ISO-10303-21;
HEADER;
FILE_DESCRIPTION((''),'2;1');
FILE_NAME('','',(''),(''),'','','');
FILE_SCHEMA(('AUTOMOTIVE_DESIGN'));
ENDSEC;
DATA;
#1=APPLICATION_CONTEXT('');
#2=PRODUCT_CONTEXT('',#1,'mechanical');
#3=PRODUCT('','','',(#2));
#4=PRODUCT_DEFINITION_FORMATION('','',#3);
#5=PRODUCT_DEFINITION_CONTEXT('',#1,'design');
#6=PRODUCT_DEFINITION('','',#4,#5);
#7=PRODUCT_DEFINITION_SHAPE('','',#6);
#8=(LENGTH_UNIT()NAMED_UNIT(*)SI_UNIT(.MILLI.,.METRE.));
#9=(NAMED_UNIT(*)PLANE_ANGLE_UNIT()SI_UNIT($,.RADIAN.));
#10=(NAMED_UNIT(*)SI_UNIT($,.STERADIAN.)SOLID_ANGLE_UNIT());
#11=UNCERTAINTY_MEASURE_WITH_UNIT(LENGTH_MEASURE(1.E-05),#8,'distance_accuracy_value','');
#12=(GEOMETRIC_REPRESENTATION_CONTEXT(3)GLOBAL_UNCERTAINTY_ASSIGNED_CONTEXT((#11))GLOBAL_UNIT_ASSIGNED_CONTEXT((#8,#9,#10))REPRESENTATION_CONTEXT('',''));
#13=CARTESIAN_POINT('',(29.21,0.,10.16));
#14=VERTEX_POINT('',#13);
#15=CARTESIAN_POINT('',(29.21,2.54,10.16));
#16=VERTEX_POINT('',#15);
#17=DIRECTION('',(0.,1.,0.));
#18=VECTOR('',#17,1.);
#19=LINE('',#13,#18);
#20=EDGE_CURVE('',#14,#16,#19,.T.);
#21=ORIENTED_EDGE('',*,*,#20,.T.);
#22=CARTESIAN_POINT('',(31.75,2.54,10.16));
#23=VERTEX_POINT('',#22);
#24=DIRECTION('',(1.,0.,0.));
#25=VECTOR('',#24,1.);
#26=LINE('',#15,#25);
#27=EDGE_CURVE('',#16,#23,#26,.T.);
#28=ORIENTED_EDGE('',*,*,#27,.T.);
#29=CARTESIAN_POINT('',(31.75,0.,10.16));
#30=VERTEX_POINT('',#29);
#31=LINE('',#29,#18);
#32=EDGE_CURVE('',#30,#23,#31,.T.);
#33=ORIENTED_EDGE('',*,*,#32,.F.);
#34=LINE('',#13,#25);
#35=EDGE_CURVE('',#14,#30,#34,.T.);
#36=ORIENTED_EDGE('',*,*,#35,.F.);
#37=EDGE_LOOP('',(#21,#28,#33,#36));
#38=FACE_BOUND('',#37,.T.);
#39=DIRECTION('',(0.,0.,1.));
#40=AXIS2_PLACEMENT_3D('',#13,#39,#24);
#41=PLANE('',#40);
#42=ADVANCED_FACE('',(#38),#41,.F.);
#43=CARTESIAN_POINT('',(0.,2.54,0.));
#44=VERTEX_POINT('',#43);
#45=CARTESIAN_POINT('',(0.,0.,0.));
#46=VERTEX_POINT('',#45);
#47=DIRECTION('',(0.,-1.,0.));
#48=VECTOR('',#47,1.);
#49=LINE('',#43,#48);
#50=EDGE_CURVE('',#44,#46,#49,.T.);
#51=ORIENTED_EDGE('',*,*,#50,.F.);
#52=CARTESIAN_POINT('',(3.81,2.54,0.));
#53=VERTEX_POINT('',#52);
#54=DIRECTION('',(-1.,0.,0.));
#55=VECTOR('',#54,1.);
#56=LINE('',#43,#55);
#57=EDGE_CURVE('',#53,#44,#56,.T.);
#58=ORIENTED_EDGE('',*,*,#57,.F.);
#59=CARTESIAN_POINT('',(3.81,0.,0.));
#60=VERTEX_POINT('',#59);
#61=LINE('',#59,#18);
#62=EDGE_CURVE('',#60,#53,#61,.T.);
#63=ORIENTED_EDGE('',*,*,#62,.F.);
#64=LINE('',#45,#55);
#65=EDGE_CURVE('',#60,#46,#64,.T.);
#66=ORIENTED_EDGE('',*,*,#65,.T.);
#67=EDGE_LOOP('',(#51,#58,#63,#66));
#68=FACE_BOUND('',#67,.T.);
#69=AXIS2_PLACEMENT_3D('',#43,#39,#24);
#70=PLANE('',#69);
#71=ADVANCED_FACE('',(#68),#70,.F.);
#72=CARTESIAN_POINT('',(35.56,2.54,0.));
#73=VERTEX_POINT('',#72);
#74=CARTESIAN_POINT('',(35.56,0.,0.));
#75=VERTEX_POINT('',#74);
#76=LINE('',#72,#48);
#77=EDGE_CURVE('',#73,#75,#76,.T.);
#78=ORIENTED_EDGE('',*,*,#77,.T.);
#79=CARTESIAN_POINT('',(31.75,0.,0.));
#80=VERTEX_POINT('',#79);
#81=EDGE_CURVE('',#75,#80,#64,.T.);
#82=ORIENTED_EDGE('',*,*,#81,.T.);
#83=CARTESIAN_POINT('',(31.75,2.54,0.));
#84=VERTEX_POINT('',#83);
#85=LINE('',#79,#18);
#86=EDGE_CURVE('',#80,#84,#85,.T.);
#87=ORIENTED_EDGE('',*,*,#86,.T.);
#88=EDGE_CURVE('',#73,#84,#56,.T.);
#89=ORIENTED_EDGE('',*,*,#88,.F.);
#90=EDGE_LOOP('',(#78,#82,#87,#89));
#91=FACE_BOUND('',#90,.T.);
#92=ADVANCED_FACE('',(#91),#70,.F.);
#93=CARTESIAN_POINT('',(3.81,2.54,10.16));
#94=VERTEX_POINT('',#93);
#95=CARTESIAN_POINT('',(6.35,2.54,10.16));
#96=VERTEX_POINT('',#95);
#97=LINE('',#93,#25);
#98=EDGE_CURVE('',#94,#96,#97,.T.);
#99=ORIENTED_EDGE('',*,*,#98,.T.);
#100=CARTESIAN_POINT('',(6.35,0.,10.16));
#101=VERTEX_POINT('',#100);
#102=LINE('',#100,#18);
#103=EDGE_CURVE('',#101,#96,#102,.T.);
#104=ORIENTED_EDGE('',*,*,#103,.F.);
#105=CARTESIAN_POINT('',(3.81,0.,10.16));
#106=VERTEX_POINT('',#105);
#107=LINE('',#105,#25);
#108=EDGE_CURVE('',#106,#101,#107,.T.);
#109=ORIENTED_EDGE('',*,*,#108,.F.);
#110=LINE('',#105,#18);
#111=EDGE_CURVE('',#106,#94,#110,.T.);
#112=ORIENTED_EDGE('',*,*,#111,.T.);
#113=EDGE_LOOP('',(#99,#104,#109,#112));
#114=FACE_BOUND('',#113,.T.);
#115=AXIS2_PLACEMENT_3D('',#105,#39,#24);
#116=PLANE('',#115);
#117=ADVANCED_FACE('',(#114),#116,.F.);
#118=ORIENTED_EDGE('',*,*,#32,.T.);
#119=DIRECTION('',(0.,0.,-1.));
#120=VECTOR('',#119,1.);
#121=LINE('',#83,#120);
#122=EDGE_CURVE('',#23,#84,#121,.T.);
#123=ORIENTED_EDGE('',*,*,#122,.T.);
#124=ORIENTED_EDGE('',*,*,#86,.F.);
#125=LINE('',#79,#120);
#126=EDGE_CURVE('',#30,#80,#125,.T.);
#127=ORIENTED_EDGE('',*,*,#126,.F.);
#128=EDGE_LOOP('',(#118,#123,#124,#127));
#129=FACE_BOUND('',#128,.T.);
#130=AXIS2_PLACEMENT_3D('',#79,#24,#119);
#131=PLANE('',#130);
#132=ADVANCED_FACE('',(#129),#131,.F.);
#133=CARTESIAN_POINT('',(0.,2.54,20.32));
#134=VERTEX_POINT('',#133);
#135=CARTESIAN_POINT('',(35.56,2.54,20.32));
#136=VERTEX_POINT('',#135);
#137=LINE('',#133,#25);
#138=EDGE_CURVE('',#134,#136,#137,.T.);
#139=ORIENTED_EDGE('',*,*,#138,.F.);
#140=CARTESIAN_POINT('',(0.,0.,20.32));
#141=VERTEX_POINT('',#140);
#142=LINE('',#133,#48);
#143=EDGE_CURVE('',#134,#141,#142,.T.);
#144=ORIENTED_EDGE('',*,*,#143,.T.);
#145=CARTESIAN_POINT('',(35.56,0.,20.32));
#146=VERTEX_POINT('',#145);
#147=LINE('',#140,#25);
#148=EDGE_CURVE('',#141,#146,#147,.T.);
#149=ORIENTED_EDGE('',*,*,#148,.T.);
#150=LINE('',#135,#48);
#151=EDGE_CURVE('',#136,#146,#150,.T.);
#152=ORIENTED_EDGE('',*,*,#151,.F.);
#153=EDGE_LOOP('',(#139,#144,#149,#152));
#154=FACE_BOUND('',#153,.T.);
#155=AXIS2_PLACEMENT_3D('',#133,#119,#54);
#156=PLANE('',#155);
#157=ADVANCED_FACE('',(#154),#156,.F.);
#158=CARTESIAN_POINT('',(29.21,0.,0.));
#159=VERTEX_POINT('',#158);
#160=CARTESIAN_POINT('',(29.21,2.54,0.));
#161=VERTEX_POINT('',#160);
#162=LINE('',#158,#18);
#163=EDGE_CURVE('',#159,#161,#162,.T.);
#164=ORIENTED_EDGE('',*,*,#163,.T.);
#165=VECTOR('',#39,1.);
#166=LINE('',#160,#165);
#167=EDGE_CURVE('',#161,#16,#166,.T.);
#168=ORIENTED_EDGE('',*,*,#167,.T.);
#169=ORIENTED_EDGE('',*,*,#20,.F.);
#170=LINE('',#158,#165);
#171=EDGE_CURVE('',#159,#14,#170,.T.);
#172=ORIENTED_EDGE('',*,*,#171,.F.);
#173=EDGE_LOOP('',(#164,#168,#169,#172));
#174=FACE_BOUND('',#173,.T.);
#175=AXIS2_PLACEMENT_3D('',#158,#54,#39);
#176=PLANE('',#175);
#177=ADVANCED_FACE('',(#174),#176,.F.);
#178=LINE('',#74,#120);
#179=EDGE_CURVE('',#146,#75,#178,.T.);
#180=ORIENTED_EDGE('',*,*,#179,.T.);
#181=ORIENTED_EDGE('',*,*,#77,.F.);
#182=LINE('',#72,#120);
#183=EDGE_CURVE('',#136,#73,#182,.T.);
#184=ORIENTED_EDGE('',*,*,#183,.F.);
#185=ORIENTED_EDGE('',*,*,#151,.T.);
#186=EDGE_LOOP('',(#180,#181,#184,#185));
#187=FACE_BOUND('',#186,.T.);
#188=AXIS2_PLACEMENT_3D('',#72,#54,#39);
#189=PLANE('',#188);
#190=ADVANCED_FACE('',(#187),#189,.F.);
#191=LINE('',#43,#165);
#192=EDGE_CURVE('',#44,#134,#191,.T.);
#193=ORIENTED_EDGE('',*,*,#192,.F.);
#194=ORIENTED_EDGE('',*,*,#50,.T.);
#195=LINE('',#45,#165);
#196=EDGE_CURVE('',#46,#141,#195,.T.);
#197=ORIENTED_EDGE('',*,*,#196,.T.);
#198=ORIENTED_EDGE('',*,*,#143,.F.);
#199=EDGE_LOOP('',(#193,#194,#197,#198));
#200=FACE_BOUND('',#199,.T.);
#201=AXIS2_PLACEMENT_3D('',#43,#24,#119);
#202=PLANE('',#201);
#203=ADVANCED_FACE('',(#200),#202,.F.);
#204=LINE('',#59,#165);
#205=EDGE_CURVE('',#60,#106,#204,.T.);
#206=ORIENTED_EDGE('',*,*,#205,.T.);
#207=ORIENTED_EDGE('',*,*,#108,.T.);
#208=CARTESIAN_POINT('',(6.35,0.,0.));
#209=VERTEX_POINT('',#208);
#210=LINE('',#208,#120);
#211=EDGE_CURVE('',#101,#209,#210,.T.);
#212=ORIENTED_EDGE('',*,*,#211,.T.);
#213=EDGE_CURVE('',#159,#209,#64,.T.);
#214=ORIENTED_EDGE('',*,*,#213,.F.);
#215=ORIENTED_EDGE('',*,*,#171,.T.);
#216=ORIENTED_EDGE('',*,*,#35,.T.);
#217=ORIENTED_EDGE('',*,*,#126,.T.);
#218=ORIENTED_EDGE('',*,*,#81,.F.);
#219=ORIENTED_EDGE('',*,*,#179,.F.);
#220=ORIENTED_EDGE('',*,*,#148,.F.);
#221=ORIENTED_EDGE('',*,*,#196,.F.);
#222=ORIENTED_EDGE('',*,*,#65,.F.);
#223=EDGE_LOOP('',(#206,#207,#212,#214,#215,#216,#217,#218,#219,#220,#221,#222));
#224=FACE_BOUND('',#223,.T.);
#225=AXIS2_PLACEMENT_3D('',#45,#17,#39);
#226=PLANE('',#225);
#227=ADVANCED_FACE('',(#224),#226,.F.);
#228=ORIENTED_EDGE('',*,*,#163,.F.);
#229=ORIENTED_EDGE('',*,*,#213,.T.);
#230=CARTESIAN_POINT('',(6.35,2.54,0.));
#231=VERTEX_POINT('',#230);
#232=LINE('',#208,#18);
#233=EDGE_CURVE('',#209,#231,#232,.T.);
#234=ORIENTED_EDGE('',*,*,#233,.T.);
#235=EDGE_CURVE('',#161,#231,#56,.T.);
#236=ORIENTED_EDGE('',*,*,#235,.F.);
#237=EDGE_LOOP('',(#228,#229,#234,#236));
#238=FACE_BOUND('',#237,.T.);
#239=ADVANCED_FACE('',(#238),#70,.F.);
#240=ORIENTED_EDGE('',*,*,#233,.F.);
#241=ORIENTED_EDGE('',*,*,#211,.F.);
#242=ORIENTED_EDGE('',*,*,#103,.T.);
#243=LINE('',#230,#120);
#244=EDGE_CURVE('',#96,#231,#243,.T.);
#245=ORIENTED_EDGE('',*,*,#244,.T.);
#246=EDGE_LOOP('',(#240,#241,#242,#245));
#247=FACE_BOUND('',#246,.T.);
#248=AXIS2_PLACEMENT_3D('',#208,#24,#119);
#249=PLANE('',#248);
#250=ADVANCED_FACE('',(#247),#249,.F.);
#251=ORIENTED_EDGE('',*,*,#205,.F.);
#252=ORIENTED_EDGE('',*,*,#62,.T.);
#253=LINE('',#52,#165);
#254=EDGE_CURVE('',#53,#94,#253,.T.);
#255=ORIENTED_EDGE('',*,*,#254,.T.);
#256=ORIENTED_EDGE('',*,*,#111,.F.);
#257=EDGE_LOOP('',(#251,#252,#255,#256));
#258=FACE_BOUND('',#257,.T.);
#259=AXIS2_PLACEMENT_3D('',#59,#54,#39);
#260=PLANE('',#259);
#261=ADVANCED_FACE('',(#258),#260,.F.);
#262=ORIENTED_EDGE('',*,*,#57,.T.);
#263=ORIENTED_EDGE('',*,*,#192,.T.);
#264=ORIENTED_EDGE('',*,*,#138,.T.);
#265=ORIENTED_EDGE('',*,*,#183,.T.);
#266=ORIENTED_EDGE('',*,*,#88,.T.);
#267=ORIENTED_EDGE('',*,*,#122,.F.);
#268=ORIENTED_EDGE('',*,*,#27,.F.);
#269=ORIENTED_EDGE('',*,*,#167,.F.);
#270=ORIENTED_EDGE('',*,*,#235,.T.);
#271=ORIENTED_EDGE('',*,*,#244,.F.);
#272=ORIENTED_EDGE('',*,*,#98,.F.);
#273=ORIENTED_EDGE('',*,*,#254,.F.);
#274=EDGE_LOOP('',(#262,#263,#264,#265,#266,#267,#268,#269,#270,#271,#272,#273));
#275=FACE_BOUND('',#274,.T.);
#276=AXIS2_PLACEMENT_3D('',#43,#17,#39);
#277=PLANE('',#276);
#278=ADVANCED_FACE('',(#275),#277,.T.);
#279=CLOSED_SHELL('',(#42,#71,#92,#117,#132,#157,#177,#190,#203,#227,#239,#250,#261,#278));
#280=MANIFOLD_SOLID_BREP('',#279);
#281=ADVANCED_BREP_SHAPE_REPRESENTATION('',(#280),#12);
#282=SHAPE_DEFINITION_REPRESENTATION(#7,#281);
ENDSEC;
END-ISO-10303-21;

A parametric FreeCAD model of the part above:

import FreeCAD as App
import Part
import Sketcher
from FreeCAD import Vector
Q = App.Units.Quantity


def add_polygon(sketch, points):
    """Adds a closed chain of lines whose ends are joined by coincident constraints."""
    first, n = sketch.GeometryCount, len(points)
    for a, b in zip(points, points[1:] + points[:1]):
        sketch.addGeometry(Part.LineSegment(App.Vector(*a, 0), App.Vector(*b, 0)), False)
    for i in range(n):
        sketch.addConstraint(Sketcher.Constraint("Coincident", first + i, 2, first + (i + 1) % n, 1))

doc = App.newDocument("Part")
body = doc.addObject("PartDesign::Body", "Body")

# Sketch on XZ plane
sketch1 = doc.addObject("Sketcher::SketchObject", "Sketch")
body.addObject(sketch1)
sketch1.AttachmentSupport = (doc.XZ_Plane, [""])
sketch1.MapMode = "FlatFace"
add_polygon(sketch1, [(0, 0), (0, 20), (36, 20), (36, 0)])  # lines 0-3
sketch1.addConstraint([
    Sketcher.Constraint("Vertical", 0),
    Sketcher.Constraint("Horizontal", 1),
    Sketcher.Constraint("Vertical", 2),
    Sketcher.Constraint("Horizontal", 3),
    Sketcher.Constraint("Coincident", 3, 2, -1, 1),
    Sketcher.Constraint("DistanceX", 1, 1, 1, 2, Q("1.4 in")),
    Sketcher.Constraint("DistanceY", 0, 1, 0, 2, Q("0.8 in")),
])
pad1 = doc.addObject("PartDesign::Pad", "Pad")
body.addObject(pad1)
pad1.Profile = sketch1
pad1.Length = Q("0.1 in")
pad1.Reversed = True

# Sketch on XZ plane
sketch2 = doc.addObject("Sketcher::SketchObject", "Sketch001")
body.addObject(sketch2)
sketch2.AttachmentSupport = (doc.XZ_Plane, [""])
sketch2.MapMode = "FlatFace"
sketch2.AttachmentOffset = App.Placement(Vector(0, 0, -0.1 * 25.4), App.Rotation())
add_polygon(sketch2, [(3.8, 0), (3.8, 10.2), (6.3, 10.2), (6.3, 0)])  # lines 0-3
add_polygon(sketch2, [(29.2, 0), (29.2, 10.2), (31.8, 10.2), (31.8, 0)])  # lines 4-7
sketch2.addConstraint([
    Sketcher.Constraint("Vertical", 0),
    Sketcher.Constraint("Horizontal", 1),
    Sketcher.Constraint("Vertical", 2),
    Sketcher.Constraint("Horizontal", 3),
    Sketcher.Constraint("Vertical", 4),
    Sketcher.Constraint("Horizontal", 5),
    Sketcher.Constraint("Vertical", 6),
    Sketcher.Constraint("Horizontal", 7),
    Sketcher.Constraint("PointOnObject", 2, 2, -1),
    Sketcher.Constraint("PointOnObject", 6, 2, -1),
    Sketcher.Constraint("Horizontal", 1, 2, 4, 2),
    Sketcher.Constraint("Equal", 3, 5),
    Sketcher.Constraint("DistanceX", 1, 1, 1, 2, Q("0.1 in")),
    Sketcher.Constraint("DistanceY", 0, 1, 0, 2, Q("0.4 in")),
    Sketcher.Constraint("DistanceX", 0, 2, 4, 2, Q("1 in")),
    Sketcher.Constraint("DistanceX", -1, 1, 0, 2, Q("0.15 in")),
])
pocket1 = doc.addObject("PartDesign::Pocket", "Pocket")
body.addObject(pocket1)
pocket1.Profile = sketch2
pocket1.Type = "ThroughAll"
pocket1.Reversed = True

doc.recompute()
